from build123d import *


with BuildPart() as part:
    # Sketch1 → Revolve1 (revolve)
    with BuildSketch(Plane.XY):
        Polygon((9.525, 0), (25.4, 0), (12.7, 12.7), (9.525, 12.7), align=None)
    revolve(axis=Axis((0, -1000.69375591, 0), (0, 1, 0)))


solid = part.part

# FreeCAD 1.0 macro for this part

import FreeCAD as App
import Part
import Sketcher

V = App.Vector
Q = App.Units.Quantity


def add_polygon(sketch, points):
    """Adds a closed chain of lines whose ends are joined by coincident constraints."""
    first, n = sketch.GeometryCount, len(points)
    for a, b in zip(points, points[1:] + points[:1]):
        sketch.addGeometry(Part.LineSegment(App.Vector(*a, 0), App.Vector(*b, 0)), False)
    for i in range(n):
        sketch.addConstraint(Sketcher.Constraint("Coincident", first + i, 2, first + (i + 1) % n, 1))

doc = App.newDocument("Part")
body = doc.addObject("PartDesign::Body", "Body")

# Sketch on XY plane
sketch1 = body.newObject("Sketcher::SketchObject", "Sketch")
sketch1.AttachmentSupport = (doc.getObject("XY_Plane"), [""])
sketch1.MapMode = "FlatFace"
add_polygon(sketch1, [(9.5, 0), (25.4, 0), (12.7, 12.7), (9.5, 12.7)])  # lines 0-3
sketch1.addConstraint([
    Sketcher.Constraint("Horizontal", 0),
    Sketcher.Constraint("Horizontal", 2),
    Sketcher.Constraint("Vertical", 3),
    Sketcher.Constraint("PointOnObject", 0, 2, -1),
    Sketcher.Constraint("DistanceY", 3, 2, 3, 1, Q("0.5 in")),
    Sketcher.Constraint("DistanceX", -1, 1, 0, 2, Q("1 in")),
    Sketcher.Constraint("Angle", 1, Q("135 deg")),
    Sketcher.Constraint("DistanceX", 0, 1, 0, 2, Q("0.625 in")),
])
revolution = body.newObject("PartDesign::Revolution", "Revolution")
revolution.Profile = sketch1
revolution.ReferenceAxis = (sketch1, ["V_Axis"])
revolution.Angle = 360

doc.recompute()
